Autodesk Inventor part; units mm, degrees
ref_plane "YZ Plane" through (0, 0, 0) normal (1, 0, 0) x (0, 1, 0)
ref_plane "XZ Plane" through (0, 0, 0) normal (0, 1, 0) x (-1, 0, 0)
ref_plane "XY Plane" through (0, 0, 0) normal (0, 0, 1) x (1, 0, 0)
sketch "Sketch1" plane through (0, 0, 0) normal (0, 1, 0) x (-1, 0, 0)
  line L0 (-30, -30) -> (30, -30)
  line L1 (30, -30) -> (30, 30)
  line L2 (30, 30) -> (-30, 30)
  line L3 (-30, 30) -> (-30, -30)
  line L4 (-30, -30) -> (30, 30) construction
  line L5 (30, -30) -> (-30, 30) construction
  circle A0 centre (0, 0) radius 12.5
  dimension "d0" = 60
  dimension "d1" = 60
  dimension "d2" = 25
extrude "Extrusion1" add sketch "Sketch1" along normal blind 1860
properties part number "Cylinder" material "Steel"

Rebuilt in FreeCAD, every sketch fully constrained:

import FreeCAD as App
import Part
import Sketcher
from FreeCAD import Vector


def add_polygon(sketch, points):
    """Adds a closed chain of lines whose ends are joined by coincident constraints."""
    first, n = sketch.GeometryCount, len(points)
    for a, b in zip(points, points[1:] + points[:1]):
        sketch.addGeometry(Part.LineSegment(App.Vector(*a, 0), App.Vector(*b, 0)), False)
    for i in range(n):
        sketch.addConstraint(Sketcher.Constraint("Coincident", first + i, 2, first + (i + 1) % n, 1))

doc = App.newDocument("Part")
body = doc.addObject("PartDesign::Body", "Body")

sketch1 = body.newObject("Sketcher::SketchObject", "Sketch")
sketch1.AttachmentSupport = (doc.getObject("XZ_Plane"), [""])
sketch1.MapMode = "FlatFace"
add_polygon(sketch1, [(30, 30), (30, -30), (-30, -30), (-30, 30)])
sketch1.addGeometry(Part.Circle(Vector(0, 0, 0), Vector(0, 0, 1), 12), False)
sketch1.addConstraint(Sketcher.Constraint("Vertical", 0))
sketch1.addConstraint(Sketcher.Constraint("Horizontal", 1))
sketch1.addConstraint(Sketcher.Constraint("Vertical", 2))
sketch1.addConstraint(Sketcher.Constraint("Horizontal", 3))
sketch1.addConstraint(Sketcher.Constraint("Coincident", 4, 3, -1, 1))
sketch1.addConstraint(Sketcher.Constraint("Symmetric", 0, 2, 2, 2, -1, 1))
sketch1.addConstraint(Sketcher.Constraint("Equal", 3, 0))
sketch1.addConstraint(Sketcher.Constraint("Diameter", 4, 25.0))
sketch1.addConstraint(Sketcher.Constraint("DistanceX", 1, 2, 1, 1, 60.0))
pad1 = body.newObject("PartDesign::Pad", "Pad")
pad1.Profile = sketch1
pad1.Length = 1860
pad1.Reversed = True

doc.recompute()
